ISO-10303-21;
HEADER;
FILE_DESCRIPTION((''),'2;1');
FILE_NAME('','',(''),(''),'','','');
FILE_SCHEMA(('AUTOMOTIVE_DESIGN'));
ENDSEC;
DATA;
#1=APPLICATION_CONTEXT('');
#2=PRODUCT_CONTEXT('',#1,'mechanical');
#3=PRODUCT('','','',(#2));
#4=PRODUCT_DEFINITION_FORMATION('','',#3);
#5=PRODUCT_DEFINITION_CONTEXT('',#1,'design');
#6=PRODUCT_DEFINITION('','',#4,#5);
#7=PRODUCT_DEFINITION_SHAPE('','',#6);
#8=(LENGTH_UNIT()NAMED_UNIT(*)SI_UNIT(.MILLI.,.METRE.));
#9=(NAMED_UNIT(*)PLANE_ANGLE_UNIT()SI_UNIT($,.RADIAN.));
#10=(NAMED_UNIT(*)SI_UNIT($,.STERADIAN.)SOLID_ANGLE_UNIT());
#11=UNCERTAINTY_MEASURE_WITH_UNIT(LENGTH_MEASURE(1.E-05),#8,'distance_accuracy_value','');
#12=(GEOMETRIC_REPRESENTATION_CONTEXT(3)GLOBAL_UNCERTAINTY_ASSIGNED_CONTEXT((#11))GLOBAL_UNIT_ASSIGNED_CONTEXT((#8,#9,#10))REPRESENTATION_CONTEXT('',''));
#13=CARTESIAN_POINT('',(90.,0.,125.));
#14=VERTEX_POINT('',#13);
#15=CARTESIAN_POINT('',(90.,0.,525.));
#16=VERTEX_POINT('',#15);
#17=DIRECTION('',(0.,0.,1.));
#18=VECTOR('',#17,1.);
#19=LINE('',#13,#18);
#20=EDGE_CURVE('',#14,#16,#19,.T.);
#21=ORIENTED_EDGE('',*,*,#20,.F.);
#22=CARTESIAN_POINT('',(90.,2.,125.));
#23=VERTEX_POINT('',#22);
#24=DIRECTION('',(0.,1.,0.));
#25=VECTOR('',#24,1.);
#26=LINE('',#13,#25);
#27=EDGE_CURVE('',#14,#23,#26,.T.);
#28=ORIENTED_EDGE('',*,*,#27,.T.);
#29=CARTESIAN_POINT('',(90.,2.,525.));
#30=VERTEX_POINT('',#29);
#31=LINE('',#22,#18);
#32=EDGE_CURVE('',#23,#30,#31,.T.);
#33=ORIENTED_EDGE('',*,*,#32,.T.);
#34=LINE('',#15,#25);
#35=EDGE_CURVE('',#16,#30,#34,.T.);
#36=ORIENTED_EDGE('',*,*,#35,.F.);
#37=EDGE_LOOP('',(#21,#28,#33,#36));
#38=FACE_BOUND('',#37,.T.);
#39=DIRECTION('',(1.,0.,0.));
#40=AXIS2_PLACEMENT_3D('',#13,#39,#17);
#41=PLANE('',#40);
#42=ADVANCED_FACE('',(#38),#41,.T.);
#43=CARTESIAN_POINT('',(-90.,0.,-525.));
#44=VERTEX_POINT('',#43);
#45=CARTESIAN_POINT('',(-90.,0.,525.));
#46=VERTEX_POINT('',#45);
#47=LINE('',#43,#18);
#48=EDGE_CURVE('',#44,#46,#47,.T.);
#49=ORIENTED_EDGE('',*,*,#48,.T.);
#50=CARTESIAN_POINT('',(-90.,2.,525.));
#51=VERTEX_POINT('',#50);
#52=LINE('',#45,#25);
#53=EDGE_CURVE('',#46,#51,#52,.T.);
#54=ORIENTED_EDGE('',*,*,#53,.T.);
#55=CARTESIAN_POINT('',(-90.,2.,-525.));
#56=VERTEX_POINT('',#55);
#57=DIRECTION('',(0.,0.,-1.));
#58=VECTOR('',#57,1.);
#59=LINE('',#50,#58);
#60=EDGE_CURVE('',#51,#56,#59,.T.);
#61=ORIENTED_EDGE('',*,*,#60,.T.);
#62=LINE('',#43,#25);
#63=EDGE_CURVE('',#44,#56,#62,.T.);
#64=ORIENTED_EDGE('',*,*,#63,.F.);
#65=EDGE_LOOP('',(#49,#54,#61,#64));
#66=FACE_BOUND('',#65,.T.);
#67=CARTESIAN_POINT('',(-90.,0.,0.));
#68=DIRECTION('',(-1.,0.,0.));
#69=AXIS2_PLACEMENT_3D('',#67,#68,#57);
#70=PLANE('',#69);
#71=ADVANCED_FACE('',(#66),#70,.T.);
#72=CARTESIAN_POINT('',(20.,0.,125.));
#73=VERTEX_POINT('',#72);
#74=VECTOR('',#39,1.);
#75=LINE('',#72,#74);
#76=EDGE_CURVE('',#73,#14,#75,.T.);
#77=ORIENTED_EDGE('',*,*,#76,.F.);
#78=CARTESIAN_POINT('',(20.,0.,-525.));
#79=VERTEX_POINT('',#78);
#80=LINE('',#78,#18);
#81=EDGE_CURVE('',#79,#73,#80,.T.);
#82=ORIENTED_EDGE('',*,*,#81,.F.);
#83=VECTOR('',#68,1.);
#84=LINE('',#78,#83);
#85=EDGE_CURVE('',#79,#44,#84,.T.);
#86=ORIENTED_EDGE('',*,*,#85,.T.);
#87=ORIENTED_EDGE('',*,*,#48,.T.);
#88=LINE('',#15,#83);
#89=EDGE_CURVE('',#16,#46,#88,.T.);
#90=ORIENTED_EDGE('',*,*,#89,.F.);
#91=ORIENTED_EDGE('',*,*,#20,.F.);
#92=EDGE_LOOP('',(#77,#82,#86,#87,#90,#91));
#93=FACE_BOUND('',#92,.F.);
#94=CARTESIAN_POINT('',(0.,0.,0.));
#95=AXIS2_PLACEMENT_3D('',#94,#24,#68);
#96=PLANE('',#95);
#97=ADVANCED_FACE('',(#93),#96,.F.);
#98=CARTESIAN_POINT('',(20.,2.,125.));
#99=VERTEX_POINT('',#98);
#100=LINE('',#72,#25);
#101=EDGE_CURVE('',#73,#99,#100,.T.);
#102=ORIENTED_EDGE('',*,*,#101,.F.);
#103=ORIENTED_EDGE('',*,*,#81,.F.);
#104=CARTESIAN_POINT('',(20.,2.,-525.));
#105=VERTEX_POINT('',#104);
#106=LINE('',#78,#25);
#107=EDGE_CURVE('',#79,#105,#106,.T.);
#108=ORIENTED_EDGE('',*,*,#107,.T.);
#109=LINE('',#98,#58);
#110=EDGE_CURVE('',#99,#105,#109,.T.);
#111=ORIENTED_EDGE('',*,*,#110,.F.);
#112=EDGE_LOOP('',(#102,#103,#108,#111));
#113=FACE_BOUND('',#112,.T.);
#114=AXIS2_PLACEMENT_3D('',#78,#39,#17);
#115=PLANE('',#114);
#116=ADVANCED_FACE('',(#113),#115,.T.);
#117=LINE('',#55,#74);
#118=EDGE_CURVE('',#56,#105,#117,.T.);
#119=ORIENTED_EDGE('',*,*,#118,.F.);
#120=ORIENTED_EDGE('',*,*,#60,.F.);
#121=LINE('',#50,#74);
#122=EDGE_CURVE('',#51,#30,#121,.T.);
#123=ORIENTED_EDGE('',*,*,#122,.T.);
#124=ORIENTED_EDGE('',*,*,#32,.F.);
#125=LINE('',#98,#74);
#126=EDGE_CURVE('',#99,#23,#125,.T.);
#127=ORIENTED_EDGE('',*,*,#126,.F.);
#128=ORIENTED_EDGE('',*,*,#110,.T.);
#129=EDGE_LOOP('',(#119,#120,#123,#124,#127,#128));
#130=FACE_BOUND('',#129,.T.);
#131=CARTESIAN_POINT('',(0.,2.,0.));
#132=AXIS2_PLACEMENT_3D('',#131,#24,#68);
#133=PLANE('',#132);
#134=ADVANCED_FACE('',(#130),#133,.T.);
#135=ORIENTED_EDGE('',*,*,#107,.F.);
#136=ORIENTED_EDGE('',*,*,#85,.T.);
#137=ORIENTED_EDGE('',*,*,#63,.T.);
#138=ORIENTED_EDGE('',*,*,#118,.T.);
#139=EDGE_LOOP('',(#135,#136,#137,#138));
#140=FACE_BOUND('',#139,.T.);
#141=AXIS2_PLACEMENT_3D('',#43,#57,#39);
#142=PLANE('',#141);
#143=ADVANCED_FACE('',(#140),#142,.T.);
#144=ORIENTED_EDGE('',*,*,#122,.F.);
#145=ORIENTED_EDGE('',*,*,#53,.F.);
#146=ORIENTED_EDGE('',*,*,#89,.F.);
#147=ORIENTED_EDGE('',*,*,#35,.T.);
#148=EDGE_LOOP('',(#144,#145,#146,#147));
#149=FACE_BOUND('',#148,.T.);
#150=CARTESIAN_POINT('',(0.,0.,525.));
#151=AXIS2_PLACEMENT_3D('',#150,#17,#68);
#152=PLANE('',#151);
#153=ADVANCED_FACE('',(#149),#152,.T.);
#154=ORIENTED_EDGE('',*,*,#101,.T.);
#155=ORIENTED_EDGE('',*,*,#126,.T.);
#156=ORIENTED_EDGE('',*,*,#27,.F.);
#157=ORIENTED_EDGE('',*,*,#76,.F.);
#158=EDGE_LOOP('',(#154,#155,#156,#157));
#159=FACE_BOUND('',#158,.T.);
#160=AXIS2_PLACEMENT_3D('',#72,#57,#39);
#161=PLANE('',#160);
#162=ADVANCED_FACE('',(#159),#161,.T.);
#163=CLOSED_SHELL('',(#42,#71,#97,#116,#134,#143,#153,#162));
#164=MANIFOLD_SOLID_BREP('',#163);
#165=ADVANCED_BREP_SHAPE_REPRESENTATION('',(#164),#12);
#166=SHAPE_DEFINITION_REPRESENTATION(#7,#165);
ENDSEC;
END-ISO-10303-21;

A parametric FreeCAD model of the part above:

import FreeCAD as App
import Part
import Sketcher
from FreeCAD import Vector
Q = App.Units.Quantity

doc = App.newDocument("Part")
body = doc.addObject("PartDesign::Body", "Body")

# Sketch on XZ plane
sketch1 = doc.addObject("Sketcher::SketchObject", "Sketch")
body.addObject(sketch1)
sketch1.AttachmentSupport = (doc.XZ_Plane, [""])
sketch1.MapMode = "FlatFace"
sketch1.addGeometry(Part.LineSegment(Vector(-90, -525, 0), Vector(-90, 525, 0)), False)
sketch1.addGeometry(Part.LineSegment(Vector(-90, 525, 0), Vector(90, 525, 0)), False)
sketch1.addGeometry(Part.LineSegment(Vector(90, 525, 0), Vector(90, 125, 0)), False)
sketch1.addGeometry(Part.LineSegment(Vector(90, 125, 0), Vector(20, 125, 0)), False)
sketch1.addGeometry(Part.LineSegment(Vector(20, 125, 0), Vector(20, -525, 0)), False)
sketch1.addGeometry(Part.LineSegment(Vector(20, -525, 0), Vector(-90, -525, 0)), False)
sketch1.addConstraint(Sketcher.Constraint("Coincident", 0, 2, 1, 1))
sketch1.addConstraint(Sketcher.Constraint("Coincident", 1, 2, 2, 1))
sketch1.addConstraint(Sketcher.Constraint("Coincident", 2, 2, 3, 1))
sketch1.addConstraint(Sketcher.Constraint("Coincident", 3, 2, 4, 1))
sketch1.addConstraint(Sketcher.Constraint("Coincident", 4, 2, 5, 1))
sketch1.addConstraint(Sketcher.Constraint("Coincident", 5, 2, 0, 1))
sketch1.addConstraint(Sketcher.Constraint("Vertical", 0))
sketch1.addConstraint(Sketcher.Constraint("Horizontal", 1))
sketch1.addConstraint(Sketcher.Constraint("Vertical", 2))
sketch1.addConstraint(Sketcher.Constraint("Horizontal", 3))
sketch1.addConstraint(Sketcher.Constraint("Vertical", 4))
sketch1.addConstraint(Sketcher.Constraint("Horizontal", 5))
sketch1.addConstraint(Sketcher.Constraint("Symmetric", 1, 2, 5, 2, -1, 1))
sketch1.addConstraint(Sketcher.Constraint("DistanceX", 1, 1, 1, 2, Q("180 mm")))
sketch1.addConstraint(Sketcher.Constraint("DistanceX", 5, 2, 5, 1, Q("110 mm")))
sketch1.addConstraint(Sketcher.Constraint("DistanceY", 0, 1, 0, 2, Q("1050 mm")))
sketch1.addConstraint(Sketcher.Constraint("DistanceY", 4, 2, 4, 1, Q("650 mm")))
pad1 = doc.addObject("PartDesign::Pad", "Pad")
body.addObject(pad1)
pad1.Profile = sketch1
pad1.Length = 2
pad1.Reversed = True

doc.recompute()
